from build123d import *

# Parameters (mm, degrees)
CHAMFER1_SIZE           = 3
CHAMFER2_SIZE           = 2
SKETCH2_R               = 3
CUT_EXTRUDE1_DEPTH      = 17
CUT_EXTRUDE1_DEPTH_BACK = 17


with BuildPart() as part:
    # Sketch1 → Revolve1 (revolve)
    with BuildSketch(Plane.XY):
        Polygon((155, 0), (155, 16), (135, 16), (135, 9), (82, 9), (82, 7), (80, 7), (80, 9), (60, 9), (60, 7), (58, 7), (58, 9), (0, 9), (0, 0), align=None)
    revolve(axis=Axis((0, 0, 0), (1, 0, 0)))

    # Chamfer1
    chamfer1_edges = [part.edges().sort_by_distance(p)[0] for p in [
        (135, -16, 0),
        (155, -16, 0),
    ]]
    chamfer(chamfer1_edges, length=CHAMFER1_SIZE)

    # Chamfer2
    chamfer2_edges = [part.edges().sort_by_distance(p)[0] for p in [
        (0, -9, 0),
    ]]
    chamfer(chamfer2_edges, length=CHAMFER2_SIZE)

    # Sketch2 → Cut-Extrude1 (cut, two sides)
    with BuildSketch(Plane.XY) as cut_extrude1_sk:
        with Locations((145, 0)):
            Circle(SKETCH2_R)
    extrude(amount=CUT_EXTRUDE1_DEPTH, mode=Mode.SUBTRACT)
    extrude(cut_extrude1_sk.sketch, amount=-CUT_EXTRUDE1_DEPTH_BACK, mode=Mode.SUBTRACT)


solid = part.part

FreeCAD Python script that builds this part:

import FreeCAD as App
import Part
import Sketcher

V = App.Vector


def edges_at(feature, points):
    """Names of the edges that pass closest to the given points."""
    edges = feature.Shape.Edges
    near = lambda p: min(range(len(edges)), key=lambda i: edges[i].distToShape(Part.Vertex(*p))[0])
    return sorted({f"Edge{near(p) + 1}" for p in points})


def add_polygon(sketch, points):
    """Adds a closed chain of lines whose ends are joined by coincident constraints."""
    first, n = sketch.GeometryCount, len(points)
    for a, b in zip(points, points[1:] + points[:1]):
        sketch.addGeometry(Part.LineSegment(App.Vector(*a, 0), App.Vector(*b, 0)), False)
    for i in range(n):
        sketch.addConstraint(Sketcher.Constraint("Coincident", first + i, 2, first + (i + 1) % n, 1))

doc = App.newDocument("Part")
body = doc.addObject("PartDesign::Body", "Body")

sketch1 = body.newObject("Sketcher::SketchObject", "Sketch")
sketch1.AttachmentSupport = (doc.getObject("XY_Plane"), [""])
sketch1.MapMode = "FlatFace"
add_polygon(sketch1, [(155, 0), (155, 16), (135, 16), (135, 9), (82, 9), (82, 7), (80, 7), (80, 9), (60, 9), (60, 7), (58, 7), (58, 9), (0, 9), (0, 0)])
sketch1.addConstraint([
    Sketcher.Constraint("Vertical", 0),
    Sketcher.Constraint("Horizontal", 1),
    Sketcher.Constraint("Vertical", 2),
    Sketcher.Constraint("Horizontal", 3),
    Sketcher.Constraint("Vertical", 4),
    Sketcher.Constraint("Horizontal", 5),
    Sketcher.Constraint("Vertical", 6),
    Sketcher.Constraint("Horizontal", 7),
    Sketcher.Constraint("Vertical", 8),
    Sketcher.Constraint("Horizontal", 9),
    Sketcher.Constraint("Vertical", 10),
    Sketcher.Constraint("Horizontal", 11),
    Sketcher.Constraint("Vertical", 12),
    Sketcher.Constraint("Horizontal", 13),
    Sketcher.Constraint("Coincident", 12, 2, -1, 1),
    Sketcher.Constraint("Horizontal", 3, 2, 6, 2),
    Sketcher.Constraint("Horizontal", 5, 2, 8, 2),
    Sketcher.Constraint("Horizontal", 7, 2, 10, 2),
    Sketcher.Constraint("Equal", 1, 7),
    Sketcher.Constraint("Equal", 5, 9),
    Sketcher.Constraint("Equal", 9, 4),
    Sketcher.Constraint("DistanceX", 1, 2, 1, 1, 20.0),
    Sketcher.Constraint("DistanceX", 3, 2, 3, 1, 53.0),
    Sketcher.Constraint("DistanceX", 5, 2, 5, 1, 2.0),
    Sketcher.Constraint("DistanceX", 11, 2, 11, 1, 58.0),
    Sketcher.Constraint("DistanceY", 0, 1, 0, 2, 16.0),
    Sketcher.Constraint("DistanceY", 2, 2, 2, 1, 7.0),
])
revolution = body.newObject("PartDesign::Revolution", "Revolution")
revolution.Profile = sketch1
revolution.ReferenceAxis = (sketch1, ["H_Axis"])
revolution.Angle = 360
doc.recompute()

chamfer = body.newObject("PartDesign::Chamfer", "Chamfer")
chamfer.Base = (revolution, edges_at(revolution, [(135, -16, 0), (155, -16, 0)]))
chamfer.Size = 3
doc.recompute()

chamfer2 = body.newObject("PartDesign::Chamfer", "Chamfer001")
chamfer2.Base = (chamfer, edges_at(chamfer, [(0, -9, 0)]))
chamfer2.Size = 2

sketch2 = body.newObject("Sketcher::SketchObject", "Sketch001")
sketch2.AttachmentSupport = (doc.getObject("XY_Plane"), [""])
sketch2.MapMode = "FlatFace"
sketch2.addGeometry(Part.Circle(V(145, 0, 0), V(0, 0, 1), 3), False)
sketch2.addConstraint([
    Sketcher.Constraint("PointOnObject", 0, 3, -1),
    Sketcher.Constraint("Diameter", 0, 6.0),
    Sketcher.Constraint("DistanceX", -1, 1, 0, 3, 145.0),
])
pocket1 = body.newObject("PartDesign::Pocket", "Pocket")
pocket1.Profile = sketch2
pocket1.Type = "ThroughAll"
pocket1.Midplane = True

doc.recompute()
